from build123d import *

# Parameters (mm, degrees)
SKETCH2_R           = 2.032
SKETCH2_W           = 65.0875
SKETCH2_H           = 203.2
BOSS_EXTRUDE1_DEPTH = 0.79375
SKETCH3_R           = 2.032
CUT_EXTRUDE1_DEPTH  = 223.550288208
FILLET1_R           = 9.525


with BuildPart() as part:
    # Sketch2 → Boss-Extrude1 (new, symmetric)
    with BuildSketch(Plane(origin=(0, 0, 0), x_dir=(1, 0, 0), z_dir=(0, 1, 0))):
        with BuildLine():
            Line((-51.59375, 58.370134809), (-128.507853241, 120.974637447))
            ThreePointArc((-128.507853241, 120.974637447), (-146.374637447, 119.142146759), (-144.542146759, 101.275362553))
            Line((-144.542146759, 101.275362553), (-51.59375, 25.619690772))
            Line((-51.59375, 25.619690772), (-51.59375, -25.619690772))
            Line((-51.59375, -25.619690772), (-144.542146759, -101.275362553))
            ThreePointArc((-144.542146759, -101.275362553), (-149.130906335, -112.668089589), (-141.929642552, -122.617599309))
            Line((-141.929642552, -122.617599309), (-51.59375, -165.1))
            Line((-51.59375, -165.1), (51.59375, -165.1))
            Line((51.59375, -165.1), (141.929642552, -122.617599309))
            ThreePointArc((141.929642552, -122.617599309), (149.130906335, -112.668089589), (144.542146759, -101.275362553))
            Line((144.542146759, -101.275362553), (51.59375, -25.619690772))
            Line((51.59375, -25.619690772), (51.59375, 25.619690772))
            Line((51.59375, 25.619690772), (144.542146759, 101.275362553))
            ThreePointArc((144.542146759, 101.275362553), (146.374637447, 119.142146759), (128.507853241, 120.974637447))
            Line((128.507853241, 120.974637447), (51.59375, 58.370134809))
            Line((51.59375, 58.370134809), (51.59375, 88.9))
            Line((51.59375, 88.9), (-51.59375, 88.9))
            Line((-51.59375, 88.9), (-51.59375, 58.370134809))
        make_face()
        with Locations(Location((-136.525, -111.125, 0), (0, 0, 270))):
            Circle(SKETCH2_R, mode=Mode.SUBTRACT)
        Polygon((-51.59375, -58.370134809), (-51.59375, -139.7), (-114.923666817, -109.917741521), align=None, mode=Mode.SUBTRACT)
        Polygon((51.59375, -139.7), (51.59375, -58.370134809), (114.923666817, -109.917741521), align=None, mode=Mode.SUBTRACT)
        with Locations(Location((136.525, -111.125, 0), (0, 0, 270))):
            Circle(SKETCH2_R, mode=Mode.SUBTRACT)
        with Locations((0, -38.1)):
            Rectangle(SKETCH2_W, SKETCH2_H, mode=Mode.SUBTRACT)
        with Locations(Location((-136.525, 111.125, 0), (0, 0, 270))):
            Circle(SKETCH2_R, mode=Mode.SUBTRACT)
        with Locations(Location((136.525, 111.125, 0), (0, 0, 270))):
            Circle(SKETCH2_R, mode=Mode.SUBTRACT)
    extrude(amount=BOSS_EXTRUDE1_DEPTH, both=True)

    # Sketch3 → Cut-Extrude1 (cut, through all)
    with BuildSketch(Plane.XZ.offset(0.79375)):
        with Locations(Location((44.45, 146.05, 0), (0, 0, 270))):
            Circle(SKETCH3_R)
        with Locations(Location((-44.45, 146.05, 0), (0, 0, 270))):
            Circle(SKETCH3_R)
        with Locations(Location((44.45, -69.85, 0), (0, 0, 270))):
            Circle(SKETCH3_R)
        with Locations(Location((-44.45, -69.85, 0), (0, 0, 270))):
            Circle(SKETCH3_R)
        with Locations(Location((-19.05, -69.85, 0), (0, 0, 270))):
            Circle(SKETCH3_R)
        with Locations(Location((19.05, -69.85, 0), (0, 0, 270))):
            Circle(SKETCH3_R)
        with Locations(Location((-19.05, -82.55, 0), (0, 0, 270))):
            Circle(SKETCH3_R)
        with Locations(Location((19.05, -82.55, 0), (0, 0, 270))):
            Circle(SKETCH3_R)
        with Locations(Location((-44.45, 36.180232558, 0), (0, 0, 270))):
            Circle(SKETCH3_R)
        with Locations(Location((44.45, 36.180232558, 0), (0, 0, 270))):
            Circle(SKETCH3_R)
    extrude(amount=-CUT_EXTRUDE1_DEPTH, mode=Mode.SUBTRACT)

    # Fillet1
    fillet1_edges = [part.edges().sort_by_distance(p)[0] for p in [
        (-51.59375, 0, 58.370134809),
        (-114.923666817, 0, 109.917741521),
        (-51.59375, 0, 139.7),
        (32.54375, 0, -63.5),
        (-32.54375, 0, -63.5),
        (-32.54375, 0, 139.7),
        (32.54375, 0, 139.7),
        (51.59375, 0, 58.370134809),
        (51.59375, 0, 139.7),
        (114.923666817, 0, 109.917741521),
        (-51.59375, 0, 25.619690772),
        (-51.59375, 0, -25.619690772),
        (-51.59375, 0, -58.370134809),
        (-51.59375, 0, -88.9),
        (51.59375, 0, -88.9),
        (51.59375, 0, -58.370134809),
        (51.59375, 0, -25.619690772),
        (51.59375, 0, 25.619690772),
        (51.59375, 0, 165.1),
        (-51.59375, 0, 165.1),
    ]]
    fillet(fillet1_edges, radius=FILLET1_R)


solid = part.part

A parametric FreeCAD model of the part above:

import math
import FreeCAD as App
import Part
import Sketcher

V = App.Vector
Q = App.Units.Quantity


def edges_at(feature, points):
    """Names of the edges that pass closest to the given points."""
    edges = feature.Shape.Edges
    near = lambda p: min(range(len(edges)), key=lambda i: edges[i].distToShape(Part.Vertex(*p))[0])
    return sorted({f"Edge{near(p) + 1}" for p in points})


def add_polygon(sketch, points):
    """Adds a closed chain of lines whose ends are joined by coincident constraints."""
    first, n = sketch.GeometryCount, len(points)
    for a, b in zip(points, points[1:] + points[:1]):
        sketch.addGeometry(Part.LineSegment(App.Vector(*a, 0), App.Vector(*b, 0)), False)
    for i in range(n):
        sketch.addConstraint(Sketcher.Constraint("Coincident", first + i, 2, first + (i + 1) % n, 1))

doc = App.newDocument("Part")
params = doc.addObject("Spreadsheet::Sheet", "Params")
for row, (alias, value) in enumerate([
    ("sketch1_radius", "0.5 in"),
    ("sketch1_diameter", "0.16 in"),
    ("sketch1_height", "8 in"),
    ("sketch1_width", "4.0625 in"),
    ("sketch1_width2", "2.5625 in"),
    ("pad1_length", "0.0625 in"),
    ("sketch2_diameter", "0.16 in"),
    ("fillet_radius", "0.375 in"),
], start=1):
    params.set(f"A{row}", alias)
    params.set(f"B{row}", "=" + value)
    params.setAlias(f"B{row}", alias)

body = doc.addObject("PartDesign::Body", "Body")

# Sketch on XZ plane
sketch1 = doc.addObject("Sketcher::SketchObject", "Sketch")
body.addObject(sketch1)
sketch1.AttachmentSupport = (doc.XZ_Plane, [""])
sketch1.MapMode = "FlatFace"
sketch1.addGeometry(Part.LineSegment(V(-51.6, -58.4, 0), V(-128.5, -121, 0)), False)  # 0
sketch1.addGeometry(Part.ArcOfCircle(Part.Circle(V(-136.5, -111.1, 0), V(0, 0, 1), 12.7), math.radians(129), math.radians(309)), False)  # 1
sketch1.addGeometry(Part.LineSegment(V(-144.5, -101.3, 0), V(-51.6, -25.6, 0)), False)  # 2
sketch1.addGeometry(Part.LineSegment(V(-51.6, -25.6, 0), V(-51.6, 25.6, 0)), False)  # 3
sketch1.addGeometry(Part.LineSegment(V(-51.6, 25.6, 0), V(-144.5, 101.3, 0)), False)  # 4
sketch1.addGeometry(Part.ArcOfCircle(Part.Circle(V(-136.5, 111.1, 0), V(0, 0, 1), 12.7), math.radians(115), math.radians(231)), False)  # 5
sketch1.addGeometry(Part.LineSegment(V(-141.9, 122.6, 0), V(-51.6, 165.1, 0)), False)  # 6
sketch1.addGeometry(Part.LineSegment(V(-51.6, 165.1, 0), V(51.6, 165.1, 0)), False)  # 7
sketch1.addGeometry(Part.LineSegment(V(51.6, 165.1, 0), V(141.9, 122.6, 0)), False)  # 8
sketch1.addGeometry(Part.ArcOfCircle(Part.Circle(V(136.5, 111.1, 0), V(0, 0, 1), 12.7), math.radians(-51), math.radians(65)), False)  # 9
sketch1.addGeometry(Part.LineSegment(V(144.5, 101.3, 0), V(51.6, 25.6, 0)), False)  # 10
sketch1.addGeometry(Part.LineSegment(V(51.6, 25.6, 0), V(51.6, -25.6, 0)), False)  # 11
sketch1.addGeometry(Part.LineSegment(V(51.6, -25.6, 0), V(144.5, -101.3, 0)), False)  # 12
sketch1.addGeometry(Part.ArcOfCircle(Part.Circle(V(136.5, -111.1, 0), V(0, 0, 1), 12.7), math.radians(-129), math.radians(51)), False)  # 13
sketch1.addGeometry(Part.LineSegment(V(128.5, -121, 0), V(51.6, -58.4, 0)), False)  # 14
sketch1.addGeometry(Part.LineSegment(V(51.6, -58.4, 0), V(51.6, -88.9, 0)), False)  # 15
sketch1.addGeometry(Part.LineSegment(V(51.6, -88.9, 0), V(-51.6, -88.9, 0)), False)  # 16
sketch1.addGeometry(Part.LineSegment(V(-51.6, -88.9, 0), V(-51.6, -58.4, 0)), False)  # 17
sketch1.addGeometry(Part.Circle(V(-136.5, 111.1, 0), V(0, 0, 1), 2), False)  # 18
add_polygon(sketch1, [(-114.9, 109.9), (-51.6, 58.4), (-51.6, 139.7)])  # lines 19-21
sketch1.addGeometry(Part.Circle(V(136.5, 111.1, 0), V(0, 0, 1), 2), False)  # 22
add_polygon(sketch1, [(114.9, 109.9), (51.6, 139.7), (51.6, 58.4)])  # lines 23-25
add_polygon(sketch1, [(32.5, 139.7), (-32.5, 139.7), (-32.5, -63.5), (32.5, -63.5)])  # lines 26-29
sketch1.addGeometry(Part.Circle(V(-136.5, -111.1, 0), V(0, 0, 1), 2), False)  # 30
sketch1.addGeometry(Part.Circle(V(136.5, -111.1, 0), V(0, 0, 1), 2), False)  # 31
sketch1.addConstraint(Sketcher.Constraint("Tangent", 0, 2, 1, 2))
sketch1.addConstraint(Sketcher.Constraint("Tangent", 1, 1, 2, 1))
sketch1.addConstraint(Sketcher.Constraint("Coincident", 2, 2, 3, 1))
sketch1.addConstraint(Sketcher.Constraint("Coincident", 3, 2, 4, 1))
sketch1.addConstraint(Sketcher.Constraint("Tangent", 4, 2, 5, 2))
sketch1.addConstraint(Sketcher.Constraint("Tangent", 5, 1, 6, 1))
sketch1.addConstraint(Sketcher.Constraint("Coincident", 6, 2, 7, 1))
sketch1.addConstraint(Sketcher.Constraint("Coincident", 7, 2, 8, 1))
sketch1.addConstraint(Sketcher.Constraint("Tangent", 8, 2, 9, 2))
sketch1.addConstraint(Sketcher.Constraint("Tangent", 9, 1, 10, 1))
sketch1.addConstraint(Sketcher.Constraint("Coincident", 10, 2, 11, 1))
sketch1.addConstraint(Sketcher.Constraint("Coincident", 11, 2, 12, 1))
sketch1.addConstraint(Sketcher.Constraint("Tangent", 12, 2, 13, 2))
sketch1.addConstraint(Sketcher.Constraint("Tangent", 13, 1, 14, 1))
sketch1.addConstraint(Sketcher.Constraint("Coincident", 14, 2, 15, 1))
sketch1.addConstraint(Sketcher.Constraint("Coincident", 15, 2, 16, 1))
sketch1.addConstraint(Sketcher.Constraint("Coincident", 16, 2, 17, 1))
sketch1.addConstraint(Sketcher.Constraint("Coincident", 17, 2, 0, 1))
sketch1.addConstraint(Sketcher.Constraint("Vertical", 3))
sketch1.addConstraint(Sketcher.Constraint("Horizontal", 7))
sketch1.addConstraint(Sketcher.Constraint("Vertical", 11))
sketch1.addConstraint(Sketcher.Constraint("Vertical", 15))
sketch1.addConstraint(Sketcher.Constraint("Horizontal", 16))
sketch1.addConstraint(Sketcher.Constraint("Vertical", 17))
sketch1.addConstraint(Sketcher.Constraint("Vertical", 20))
sketch1.addConstraint(Sketcher.Constraint("Vertical", 24))
sketch1.addConstraint(Sketcher.Constraint("Horizontal", 26))
sketch1.addConstraint(Sketcher.Constraint("Vertical", 27))
sketch1.addConstraint(Sketcher.Constraint("Horizontal", 28))
sketch1.addConstraint(Sketcher.Constraint("Vertical", 29))
sketch1.addConstraint(Sketcher.Constraint("Coincident", 18, 3, 5, 3))
sketch1.addConstraint(Sketcher.Constraint("Coincident", 22, 3, 9, 3))
sketch1.addConstraint(Sketcher.Constraint("Coincident", 30, 3, 1, 3))
sketch1.addConstraint(Sketcher.Constraint("Coincident", 31, 3, 13, 3))
sketch1.addConstraint(Sketcher.Constraint("Equal", 1, 5))
sketch1.addConstraint(Sketcher.Constraint("Equal", 5, 9))
sketch1.addConstraint(Sketcher.Constraint("Equal", 9, 13))
sketch1.addConstraint(Sketcher.Constraint("Equal", 18, 22))
sketch1.addConstraint(Sketcher.Constraint("Equal", 22, 30))
sketch1.addConstraint(Sketcher.Constraint("Equal", 30, 31))
sketch1.addConstraint(Sketcher.Constraint("Symmetric", 1, 3, 9, 3, -1, 1))
sketch1.addConstraint(Sketcher.Constraint("Symmetric", 5, 3, 13, 3, -1, 1))
sketch1.addConstraint(Sketcher.Constraint("Symmetric", 2, 2, 10, 2, -1, 1))
sketch1.addConstraint(Sketcher.Constraint("Symmetric", 14, 2, 19, 2, -1, 1))
sketch1.addConstraint(Sketcher.Constraint("Symmetric", 17, 2, 24, 2, -1, 1))
sketch1.addConstraint(Sketcher.Constraint("Symmetric", 5, 3, 9, 3, -2))
sketch1.addConstraint(Sketcher.Constraint("Symmetric", 14, 2, 17, 2, -2))
sketch1.addConstraint(Sketcher.Constraint("Symmetric", 21, 2, 25, 2, -2))
sketch1.addConstraint(Sketcher.Constraint("Parallel", 0, 2))
sketch1.addConstraint(Sketcher.Constraint("Parallel", 4, 12))
sketch1.addConstraint(Sketcher.Constraint("Parallel", 12, 14))
sketch1.addConstraint(Sketcher.Constraint("Parallel", 14, 19))
sketch1.addConstraint(Sketcher.Constraint("Parallel", 6, 21))
sketch1.addConstraint(Sketcher.Constraint("Parallel", 8, 23))
sketch1.addConstraint(Sketcher.Constraint("Horizontal", 5, 1, 8, 2))
sketch1.addConstraint(Sketcher.Constraint("Horizontal", 23, 2, 26, 2))
sketch1.addConstraint(Sketcher.Constraint("Vertical", 3, 2, 6, 2))
sketch1.addConstraint(Sketcher.Constraint("Vertical", 11, 2, 14, 2))
sketch1.addConstraint(Sketcher.Constraint("Radius", 1, Q("0.5 in")))
sketch1.addConstraint(Sketcher.Constraint("Diameter", 18, Q("0.16 in")))
sketch1.addConstraint(Sketcher.Constraint("DistanceY", 27, 2, 27, 1, Q("8 in")))
sketch1.addConstraint(Sketcher.Constraint("DistanceY", 20, 2, 6, 2, Q("1 in")))
sketch1.addConstraint(Sketcher.Constraint("DistanceY", 16, 2, 27, 2, Q("1 in")))
sketch1.addConstraint(Sketcher.Constraint("DistanceY", -1, 1, 6, 2, Q("6.5 in")))
sketch1.addConstraint(Sketcher.Constraint("DistanceX", 7, 1, 7, 2, Q("4.0625 in")))
sketch1.addConstraint(Sketcher.Constraint("DistanceX", 26, 2, 26, 1, Q("2.5625 in")))
sketch1.addConstraint(Sketcher.Constraint("DistanceY", 1, 3, 5, 3, Q("8.75 in")))
sketch1.addConstraint(Sketcher.Constraint("DistanceX", 5, 3, 9, 3, Q("10.75 in")))
sketch1.addConstraint(Sketcher.Constraint("DistanceX", 20, 2, 26, 2, Q("0.75 in")))
sketch1.addConstraint(Sketcher.Constraint("DistanceY", 3, 1, 3, 2, 51.239382))
sketch1.setExpression("Constraints[68]", "Params.sketch1_radius")
sketch1.setExpression("Constraints[69]", "Params.sketch1_diameter")
sketch1.setExpression("Constraints[70]", "Params.sketch1_height")
sketch1.setExpression("Constraints[74]", "Params.sketch1_width")
sketch1.setExpression("Constraints[75]", "Params.sketch1_width2")
pad1 = doc.addObject("PartDesign::Pad", "Pad")
body.addObject(pad1)
pad1.Profile = sketch1
pad1.setExpression("Length", "Params.pad1_length")
pad1.Midplane = True

# Sketch on XZ plane
sketch2 = doc.addObject("Sketcher::SketchObject", "Sketch001")
body.addObject(sketch2)
sketch2.AttachmentSupport = (doc.XZ_Plane, [""])
sketch2.MapMode = "FlatFace"
sketch2.AttachmentOffset = App.Placement(V(0, 0, 0.03125 * 25.4), App.Rotation())
sketch2.addGeometry(Part.Circle(V(44.5, 146.1, 0), V(0, 0, 1), 2), False)
sketch2.addGeometry(Part.Circle(V(-44.5, 146.1, 0), V(0, 0, 1), 2), False)
sketch2.addGeometry(Part.Circle(V(44.5, -69.8, 0), V(0, 0, 1), 2), False)
sketch2.addGeometry(Part.Circle(V(-44.5, -69.8, 0), V(0, 0, 1), 2), False)
sketch2.addGeometry(Part.Circle(V(-19.1, -69.8, 0), V(0, 0, 1), 2), False)
sketch2.addGeometry(Part.Circle(V(19.1, -69.8, 0), V(0, 0, 1), 2), False)
sketch2.addGeometry(Part.Circle(V(-19.1, -82.5, 0), V(0, 0, 1), 2), False)
sketch2.addGeometry(Part.Circle(V(19.1, -82.5, 0), V(0, 0, 1), 2), False)
sketch2.addGeometry(Part.Circle(V(-44.5, 36.2, 0), V(0, 0, 1), 2), False)
sketch2.addGeometry(Part.Circle(V(44.5, 36.2, 0), V(0, 0, 1), 2), False)
sketch2.addConstraint(Sketcher.Constraint("Equal", 0, 1))
sketch2.addConstraint(Sketcher.Constraint("Equal", 1, 2))
sketch2.addConstraint(Sketcher.Constraint("Equal", 2, 3))
sketch2.addConstraint(Sketcher.Constraint("Equal", 3, 4))
sketch2.addConstraint(Sketcher.Constraint("Equal", 4, 5))
sketch2.addConstraint(Sketcher.Constraint("Equal", 5, 6))
sketch2.addConstraint(Sketcher.Constraint("Equal", 6, 7))
sketch2.addConstraint(Sketcher.Constraint("Equal", 7, 8))
sketch2.addConstraint(Sketcher.Constraint("Equal", 8, 9))
sketch2.addConstraint(Sketcher.Constraint("Symmetric", 0, 3, 1, 3, -2))
sketch2.addConstraint(Sketcher.Constraint("Symmetric", 2, 3, 3, 3, -2))
sketch2.addConstraint(Sketcher.Constraint("Symmetric", 4, 3, 5, 3, -2))
sketch2.addConstraint(Sketcher.Constraint("Symmetric", 6, 3, 7, 3, -2))
sketch2.addConstraint(Sketcher.Constraint("Symmetric", 8, 3, 9, 3, -2))
sketch2.addConstraint(Sketcher.Constraint("Horizontal", 3, 3, 4, 3))
sketch2.addConstraint(Sketcher.Constraint("Vertical", 0, 3, 2, 3))
sketch2.addConstraint(Sketcher.Constraint("Vertical", 4, 3, 6, 3))
sketch2.addConstraint(Sketcher.Constraint("Vertical", 3, 3, 8, 3))
sketch2.addConstraint(Sketcher.Constraint("Diameter", 0, Q("0.16 in")))
sketch2.addConstraint(Sketcher.Constraint("DistanceX", 3, 3, 4, 3, Q("1 in")))
sketch2.addConstraint(Sketcher.Constraint("DistanceY", 6, 3, 1, 3, Q("9 in")))
sketch2.addConstraint(Sketcher.Constraint("DistanceX", 1, 3, 0, 3, Q("3.5 in")))
sketch2.addConstraint(Sketcher.Constraint("DistanceY", 2, 3, 0, 3, Q("8.5 in")))
sketch2.addConstraint(Sketcher.Constraint("DistanceY", -1, 1, 0, 3, Q("5.75 in")))
sketch2.addConstraint(Sketcher.Constraint("DistanceY", -1, 1, 8, 3, 36.180233))
sketch2.setExpression("Constraints[18]", "Params.sketch2_diameter")
pocket1 = doc.addObject("PartDesign::Pocket", "Pocket")
body.addObject(pocket1)
pocket1.Profile = sketch2
pocket1.Type = "ThroughAll"
doc.recompute()

fillet = doc.addObject("PartDesign::Fillet", "Fillet")
body.addObject(fillet)
fillet.Base = (pocket1, edges_at(pocket1, [
    (-51.594, 0, 58.37),
    (-114.924, 0, 109.918),
    (-51.594, 0, 139.7),
    (32.544, 0, -63.5),
    (-32.544, 0, -63.5),
    (-32.544, 0, 139.7),
    (32.544, 0, 139.7),
    (51.594, 0, 58.37),
    (51.594, 0, 139.7),
    (114.924, 0, 109.918),
    (-51.594, 0, 25.62),
    (-51.594, 0, -25.62),
    (-51.594, 0, -58.37),
    (-51.594, 0, -88.9),
    (51.594, 0, -88.9),
    (51.594, 0, -58.37),
    (51.594, 0, -25.62),
    (51.594, 0, 25.62),
    (51.594, 0, 165.1),
    (-51.594, 0, 165.1),
]))
fillet.setExpression("Radius", "Params.fillet_radius")

doc.recompute()
